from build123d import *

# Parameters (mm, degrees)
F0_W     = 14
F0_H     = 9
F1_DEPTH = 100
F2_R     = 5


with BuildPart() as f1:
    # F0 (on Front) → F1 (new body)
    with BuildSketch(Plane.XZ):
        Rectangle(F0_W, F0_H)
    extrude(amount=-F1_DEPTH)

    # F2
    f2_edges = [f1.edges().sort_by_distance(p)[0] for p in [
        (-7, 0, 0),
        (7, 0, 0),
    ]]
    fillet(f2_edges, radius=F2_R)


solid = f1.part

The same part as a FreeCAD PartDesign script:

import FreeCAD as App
import Part
import Sketcher
Q = App.Units.Quantity


def edges_at(feature, points):
    """Names of the edges that pass closest to the given points."""
    edges = feature.Shape.Edges
    near = lambda p: min(range(len(edges)), key=lambda i: edges[i].distToShape(Part.Vertex(*p))[0])
    return sorted({f"Edge{near(p) + 1}" for p in points})

doc = App.newDocument("Part")
body = doc.addObject("PartDesign::Body", "Body")

sketch1 = body.newObject("Sketcher::SketchObject", "Sketch")
sketch1.AttachmentSupport = (doc.getObject("XZ_Plane"), [""])
sketch1.MapMode = "FlatFace"
sketch1.addGeometry([
    Part.LineSegment(App.Vector(-7, 4, 0), App.Vector(-7, -4, 0)),
    Part.LineSegment(App.Vector(-7, -4, 0), App.Vector(7, -4, 0)),
    Part.LineSegment(App.Vector(7, -4, 0), App.Vector(7, 4, 0)),
    Part.LineSegment(App.Vector(7, 4, 0), App.Vector(-7, 4, 0)),
], False)
sketch1.addConstraint([
    Sketcher.Constraint("Coincident", 0, 2, 1, 1),
    Sketcher.Constraint("Coincident", 1, 2, 2, 1),
    Sketcher.Constraint("Coincident", 2, 2, 3, 1),
    Sketcher.Constraint("Coincident", 3, 2, 0, 1),
    Sketcher.Constraint("Vertical", 0),
    Sketcher.Constraint("Horizontal", 1),
    Sketcher.Constraint("Vertical", 2),
    Sketcher.Constraint("Horizontal", 3),
    Sketcher.Constraint("Symmetric", 0, 2, 2, 2, -1, 1),
    Sketcher.Constraint("DistanceX", 1, 1, 1, 2, Q("14 mm")),
    Sketcher.Constraint("DistanceY", 0, 2, 0, 1, Q("9 mm")),
])
pad1 = body.newObject("PartDesign::Pad", "Pad")
pad1.Profile = sketch1
pad1.Length = 100
pad1.Reversed = True
doc.recompute()

fillet = body.newObject("PartDesign::Fillet", "Fillet")
fillet.Base = (pad1, edges_at(pad1, [(-7, 0, 0), (7, 0, 0)]))
fillet.Radius = 5

doc.recompute()
